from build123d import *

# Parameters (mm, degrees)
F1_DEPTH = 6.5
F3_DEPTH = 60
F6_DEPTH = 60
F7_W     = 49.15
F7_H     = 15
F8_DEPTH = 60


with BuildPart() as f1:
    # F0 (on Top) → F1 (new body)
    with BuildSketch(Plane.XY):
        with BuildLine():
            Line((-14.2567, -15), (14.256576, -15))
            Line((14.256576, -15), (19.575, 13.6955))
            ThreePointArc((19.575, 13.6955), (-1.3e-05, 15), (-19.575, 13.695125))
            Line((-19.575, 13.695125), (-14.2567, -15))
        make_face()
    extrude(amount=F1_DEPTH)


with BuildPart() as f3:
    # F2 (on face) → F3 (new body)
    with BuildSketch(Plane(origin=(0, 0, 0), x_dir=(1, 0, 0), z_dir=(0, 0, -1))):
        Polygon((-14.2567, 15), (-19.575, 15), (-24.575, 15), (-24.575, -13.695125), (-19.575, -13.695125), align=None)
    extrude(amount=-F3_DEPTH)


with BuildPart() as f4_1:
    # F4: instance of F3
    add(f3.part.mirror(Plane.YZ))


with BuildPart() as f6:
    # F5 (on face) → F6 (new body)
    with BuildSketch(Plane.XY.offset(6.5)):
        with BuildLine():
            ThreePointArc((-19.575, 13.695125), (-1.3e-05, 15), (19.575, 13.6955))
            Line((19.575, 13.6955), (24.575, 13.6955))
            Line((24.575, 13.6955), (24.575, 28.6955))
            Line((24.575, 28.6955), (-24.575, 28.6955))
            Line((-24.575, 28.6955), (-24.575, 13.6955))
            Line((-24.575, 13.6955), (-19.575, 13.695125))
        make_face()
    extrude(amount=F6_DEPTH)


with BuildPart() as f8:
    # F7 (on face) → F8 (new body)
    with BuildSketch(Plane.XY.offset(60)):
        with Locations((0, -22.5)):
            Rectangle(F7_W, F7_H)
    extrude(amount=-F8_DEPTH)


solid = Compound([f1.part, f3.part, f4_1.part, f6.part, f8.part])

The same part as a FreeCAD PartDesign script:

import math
import FreeCAD as App
import Part
import Sketcher


def add_polygon(sketch, points):
    """Adds a closed chain of lines whose ends are joined by coincident constraints."""
    first, n = sketch.GeometryCount, len(points)
    for a, b in zip(points, points[1:] + points[:1]):
        sketch.addGeometry(Part.LineSegment(App.Vector(*a, 0), App.Vector(*b, 0)), False)
    for i in range(n):
        sketch.addConstraint(Sketcher.Constraint("Coincident", first + i, 2, first + (i + 1) % n, 1))

doc = App.newDocument("Part")
body = doc.addObject("PartDesign::Body", "Body")

# Sketch on XY plane
sketch1 = doc.addObject("Sketcher::SketchObject", "Sketch")
body.addObject(sketch1)
sketch1.AttachmentSupport = (doc.XY_Plane, [""])
sketch1.MapMode = "FlatFace"
sketch1.addGeometry([
    Part.LineSegment(App.Vector(-14.2567, -15, 0), App.Vector(14.256576, -15, 0)),
    Part.LineSegment(App.Vector(14.256576, -15, 0), App.Vector(19.575, 13.6955, 0)),
    Part.ArcOfCircle(Part.Circle(App.Vector(0.0014, -132.500008, 0), App.Vector(0, 0, 1), 147.500008), math.radians(82.37422), math.radians(97.626877)),
    Part.LineSegment(App.Vector(-19.575, 13.695125, 0), App.Vector(-14.2567, -15, 0)),
], False)
sketch1.addConstraint([
    Sketcher.Constraint("Coincident", 0, 2, 1, 1),
    Sketcher.Constraint("Coincident", 1, 2, 2, 1),
    Sketcher.Constraint("Coincident", 2, 2, 3, 1),
    Sketcher.Constraint("Coincident", 3, 2, 0, 1),
    Sketcher.Constraint("Horizontal", 0),
    Sketcher.Constraint("DistanceY", 0, 2, -1, 1, 15.0),
    Sketcher.Constraint("Radius", 2, 147.500008),
    Sketcher.Constraint("DistanceX", 2, 2, 1, 2, 39.15),
    Sketcher.Constraint("DistanceX", -1, 1, 1, 2, 19.575),
    Sketcher.Constraint("DistanceX", -1, 1, 2, 3, 0.0014),
    Sketcher.Constraint("DistanceY", -1, 1, 1, 2, 13.6955),
    Sketcher.Constraint("DistanceX", 3, 2, -1, 1, 14.2567),
    Sketcher.Constraint("DistanceX", 0, 1, 0, 2, 28.513276),
])
pad1 = doc.addObject("PartDesign::Pad", "Pad")
body.addObject(pad1)
pad1.Profile = sketch1
pad1.Length = 6.5
body2 = doc.addObject("PartDesign::Body", "Body001")

# Sketch on XY plane
sketch2 = doc.addObject("Sketcher::SketchObject", "Sketch001")
body2.addObject(sketch2)
sketch2.AttachmentSupport = (doc.getObject("XY_Plane001"), [""])
sketch2.MapMode = "FlatFace"
add_polygon(sketch2, [(-14.2567, -15), (-24.575, -15), (-24.575, 13.695125), (-19.575, 13.695125)])  # lines 0-3
sketch2.addConstraint([
    Sketcher.Constraint("Horizontal", 0),
    Sketcher.Constraint("Vertical", 1),
    Sketcher.Constraint("Horizontal", 2),
    Sketcher.Constraint("DistanceX", 2, 1, 2, 2, 5.0),
    Sketcher.Constraint("DistanceY", 0, 2, -1, 1, 15.0),
    Sketcher.Constraint("DistanceX", 0, 2, 0, 1, 10.3183),
    Sketcher.Constraint("DistanceX", 0, 2, -1, 1, 24.575),
    Sketcher.Constraint("DistanceY", 1, 1, 1, 2, 28.695125),
])
pad2 = doc.addObject("PartDesign::Pad", "Pad001")
body2.addObject(pad2)
pad2.Profile = sketch2
pad2.Length = 60
body3 = doc.addObject("PartDesign::Body", "Body002")
doc.recompute()

mirroring = doc.addObject("Part::Mirroring", "Mirroring")
mirroring.Source = body2
mirroring.Base = App.Vector(0, 0, 0)
mirroring.Normal = App.Vector(1, 0, 0)
body3.BaseFeature = mirroring
doc.recompute()
body4 = doc.addObject("PartDesign::Body", "Body003")

# Sketch on XY plane
sketch3 = doc.addObject("Sketcher::SketchObject", "Sketch002")
body4.addObject(sketch3)
sketch3.AttachmentSupport = (doc.getObject("XY_Plane003"), [""])
sketch3.MapMode = "FlatFace"
sketch3.AttachmentOffset = App.Placement(App.Vector(0, 0, 6.5), App.Rotation())
sketch3.addGeometry([
    Part.ArcOfCircle(Part.Circle(App.Vector(0.0014, -132.500008, 0), App.Vector(0, 0, 1), 147.500008), math.radians(82.37422), math.radians(97.626877)),  # 0
    Part.LineSegment(App.Vector(19.575, 13.6955, 0), App.Vector(24.575, 13.6955, 0)),  # 1
    Part.LineSegment(App.Vector(24.575, 13.6955, 0), App.Vector(24.575, 28.6955, 0)),  # 2
    Part.LineSegment(App.Vector(24.575, 28.6955, 0), App.Vector(-24.575, 28.6955, 0)),  # 3
    Part.LineSegment(App.Vector(-24.575, 28.6955, 0), App.Vector(-24.575, 13.6955, 0)),  # 4
    Part.LineSegment(App.Vector(-24.575, 13.6955, 0), App.Vector(-19.575, 13.695125, 0)),  # 5
], False)
sketch3.addConstraint([
    Sketcher.Constraint("Coincident", 0, 1, 1, 1),
    Sketcher.Constraint("Coincident", 1, 2, 2, 1),
    Sketcher.Constraint("Coincident", 2, 2, 3, 1),
    Sketcher.Constraint("Coincident", 3, 2, 4, 1),
    Sketcher.Constraint("Coincident", 4, 2, 5, 1),
    Sketcher.Constraint("Coincident", 5, 2, 0, 2),
    Sketcher.Constraint("Horizontal", 1),
    Sketcher.Constraint("Vertical", 2),
    Sketcher.Constraint("Horizontal", 3),
    Sketcher.Constraint("Vertical", 4),
    Sketcher.Constraint("Symmetric", 1, 2, 4, 2, -2),
    Sketcher.Constraint("DistanceX", 1, 1, 1, 2, 5.0),
    Sketcher.Constraint("DistanceY", 2, 1, 2, 2, 15.0),
    Sketcher.Constraint("Distance", 5, 5.0),
    Sketcher.Constraint("DistanceX", 3, 2, 3, 1, 49.15),
    Sketcher.Constraint("Radius", 0, 147.500008),
    Sketcher.Constraint("DistanceX", -1, 1, 0, 3, 0.0014),
    Sketcher.Constraint("DistanceY", -1, 1, 0, 1, 13.6955),
])
pad3 = doc.addObject("PartDesign::Pad", "Pad002")
body4.addObject(pad3)
pad3.Profile = sketch3
pad3.Length = 60
body5 = doc.addObject("PartDesign::Body", "Body004")

# Sketch on XY plane
sketch4 = doc.addObject("Sketcher::SketchObject", "Sketch003")
body5.addObject(sketch4)
sketch4.AttachmentSupport = (doc.getObject("XY_Plane004"), [""])
sketch4.MapMode = "FlatFace"
sketch4.AttachmentOffset = App.Placement(App.Vector(0, 0, 60), App.Rotation())
add_polygon(sketch4, [(-24.575, -15), (-24.575, -30), (24.575, -30), (24.575, -15)])  # lines 0-3
sketch4.addConstraint([
    Sketcher.Constraint("Vertical", 0),
    Sketcher.Constraint("Horizontal", 1),
    Sketcher.Constraint("Vertical", 2),
    Sketcher.Constraint("Horizontal", 3),
    Sketcher.Constraint("DistanceY", 0, 2, 0, 1, 15.0),
    Sketcher.Constraint("DistanceY", 0, 2, -1, 1, 30.0),
    Sketcher.Constraint("DistanceX", 1, 1, 1, 2, 49.15),
    Sketcher.Constraint("DistanceX", 0, 2, -1, 1, 24.575),
])
pad4 = doc.addObject("PartDesign::Pad", "Pad003")
body5.addObject(pad4)
pad4.Profile = sketch4
pad4.Length = 60
pad4.Reversed = True
mirroring.Visibility = False

doc.recompute()
